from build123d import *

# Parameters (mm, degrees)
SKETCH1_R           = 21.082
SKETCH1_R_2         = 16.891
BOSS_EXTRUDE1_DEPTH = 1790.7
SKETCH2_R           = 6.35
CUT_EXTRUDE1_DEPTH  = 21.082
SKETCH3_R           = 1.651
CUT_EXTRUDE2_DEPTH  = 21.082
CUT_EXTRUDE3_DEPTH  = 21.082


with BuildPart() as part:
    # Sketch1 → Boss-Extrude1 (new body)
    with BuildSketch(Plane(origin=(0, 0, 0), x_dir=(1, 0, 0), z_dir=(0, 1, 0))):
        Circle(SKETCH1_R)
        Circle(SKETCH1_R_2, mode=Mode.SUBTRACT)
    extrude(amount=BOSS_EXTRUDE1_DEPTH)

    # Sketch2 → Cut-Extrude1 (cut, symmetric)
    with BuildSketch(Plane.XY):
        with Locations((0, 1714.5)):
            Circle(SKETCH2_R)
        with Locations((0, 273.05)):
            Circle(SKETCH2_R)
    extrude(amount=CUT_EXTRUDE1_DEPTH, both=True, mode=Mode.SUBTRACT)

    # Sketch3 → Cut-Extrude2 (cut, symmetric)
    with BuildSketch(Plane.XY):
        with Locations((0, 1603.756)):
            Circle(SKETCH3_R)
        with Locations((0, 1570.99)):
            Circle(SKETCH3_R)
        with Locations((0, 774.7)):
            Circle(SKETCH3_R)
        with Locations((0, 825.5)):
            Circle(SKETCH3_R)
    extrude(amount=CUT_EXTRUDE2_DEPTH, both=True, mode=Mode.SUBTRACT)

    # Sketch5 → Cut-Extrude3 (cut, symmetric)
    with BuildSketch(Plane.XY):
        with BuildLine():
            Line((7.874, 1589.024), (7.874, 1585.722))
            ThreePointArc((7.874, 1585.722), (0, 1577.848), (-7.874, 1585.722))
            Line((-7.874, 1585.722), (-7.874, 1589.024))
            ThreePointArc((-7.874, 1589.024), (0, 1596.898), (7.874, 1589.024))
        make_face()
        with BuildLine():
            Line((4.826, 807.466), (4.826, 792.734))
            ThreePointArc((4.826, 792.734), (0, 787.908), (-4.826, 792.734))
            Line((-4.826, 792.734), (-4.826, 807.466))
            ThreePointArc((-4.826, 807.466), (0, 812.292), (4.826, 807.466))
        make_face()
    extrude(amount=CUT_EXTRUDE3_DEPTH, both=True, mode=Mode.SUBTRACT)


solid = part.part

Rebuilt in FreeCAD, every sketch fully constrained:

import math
import FreeCAD as App
import Part
import Sketcher
from FreeCAD import Vector
Q = App.Units.Quantity

doc = App.newDocument("Part")
body = doc.addObject("PartDesign::Body", "Body")

# Sketch on XZ plane
sketch1 = body.newObject("Sketcher::SketchObject", "Sketch")
sketch1.AttachmentSupport = (doc.getObject("XZ_Plane"), [""])
sketch1.MapMode = "FlatFace"
sketch1.addGeometry(Part.Circle(Vector(0, 0, 0), Vector(0, 0, 1), 21.082), False)
sketch1.addGeometry(Part.Circle(Vector(0, 0, 0), Vector(0, 0, 1), 16.891), False)
sketch1.addConstraint(Sketcher.Constraint("Coincident", 0, 3, -1, 1))
sketch1.addConstraint(Sketcher.Constraint("Coincident", 1, 3, -1, 1))
sketch1.addConstraint(Sketcher.Constraint("Diameter", 0, Q("1.66 in")))
sketch1.addConstraint(Sketcher.Constraint("Diameter", 1, Q("1.33 in")))
pad1 = body.newObject("PartDesign::Pad", "Pad")
pad1.Profile = sketch1
pad1.Length = Q("70.5 in")
pad1.Reversed = True

# Sketch on XY plane
sketch2 = body.newObject("Sketcher::SketchObject", "Sketch001")
sketch2.AttachmentSupport = (doc.getObject("XY_Plane"), [""])
sketch2.MapMode = "FlatFace"
sketch2.addGeometry(Part.Circle(Vector(0, 1714.5, 0), Vector(0, 0, 1), 6.35), False)
sketch2.addGeometry(Part.Circle(Vector(0, 273.05, 0), Vector(0, 0, 1), 6.35), False)
sketch2.addConstraint(Sketcher.Constraint("Equal", 0, 1))
sketch2.addConstraint(Sketcher.Constraint("PointOnObject", 0, 3, -2))
sketch2.addConstraint(Sketcher.Constraint("PointOnObject", 1, 3, -2))
sketch2.addConstraint(Sketcher.Constraint("Diameter", 0, Q("0.5 in")))
sketch2.addConstraint(Sketcher.Constraint("DistanceY", -1, 1, 0, 3, Q("67.5 in")))
sketch2.addConstraint(Sketcher.Constraint("DistanceY", -1, 1, 1, 3, Q("10.75 in")))
pocket1 = body.newObject("PartDesign::Pocket", "Pocket")
pocket1.Profile = sketch2
pocket1.Length = Q("1.66 in")
pocket1.Midplane = True

# Sketch on XY plane
sketch3 = body.newObject("Sketcher::SketchObject", "Sketch002")
sketch3.AttachmentSupport = (doc.getObject("XY_Plane"), [""])
sketch3.MapMode = "FlatFace"
sketch3.addGeometry(Part.Circle(Vector(0, 1603.756, 0), Vector(0, 0, 1), 1.651), False)
sketch3.addGeometry(Part.Circle(Vector(0, 1570.99, 0), Vector(0, 0, 1), 1.651), False)
sketch3.addGeometry(Part.Circle(Vector(0, 774.7, 0), Vector(0, 0, 1), 1.651), False)
sketch3.addGeometry(Part.Circle(Vector(0, 825.5, 0), Vector(0, 0, 1), 1.651), False)
sketch3.addConstraint(Sketcher.Constraint("Equal", 0, 1))
sketch3.addConstraint(Sketcher.Constraint("Equal", 1, 2))
sketch3.addConstraint(Sketcher.Constraint("Equal", 2, 3))
sketch3.addConstraint(Sketcher.Constraint("PointOnObject", 0, 3, -2))
sketch3.addConstraint(Sketcher.Constraint("PointOnObject", 1, 3, -2))
sketch3.addConstraint(Sketcher.Constraint("PointOnObject", 2, 3, -2))
sketch3.addConstraint(Sketcher.Constraint("PointOnObject", 3, 3, -2))
sketch3.addConstraint(Sketcher.Constraint("Diameter", 0, Q("0.13 in")))
sketch3.addConstraint(Sketcher.Constraint("DistanceY", 2, 3, 3, 3, Q("2 in")))
sketch3.addConstraint(Sketcher.Constraint("DistanceY", -1, 1, 2, 3, Q("30.5 in")))
sketch3.addConstraint(Sketcher.Constraint("DistanceY", -1, 1, 0, 3, Q("63.14 in")))
sketch3.addConstraint(Sketcher.Constraint("DistanceY", -1, 1, 1, 3, Q("61.85 in")))
pocket2 = body.newObject("PartDesign::Pocket", "Pocket001")
pocket2.Profile = sketch3
pocket2.Length = Q("1.66 in")
pocket2.Midplane = True

# Sketch on XY plane
sketch4 = body.newObject("Sketcher::SketchObject", "Sketch003")
sketch4.AttachmentSupport = (doc.getObject("XY_Plane"), [""])
sketch4.MapMode = "FlatFace"
sketch4.addGeometry(Part.LineSegment(Vector(7.874, 1585.722, 0), Vector(7.874, 1589.024, 0)), False)
sketch4.addGeometry(Part.ArcOfCircle(Part.Circle(Vector(0, 1589.024, 0), Vector(0, 0, 1), 7.874), math.radians(0), math.radians(180)), False)
sketch4.addGeometry(Part.LineSegment(Vector(-7.874, 1589.024, 0), Vector(-7.874, 1585.722, 0)), False)
sketch4.addGeometry(Part.ArcOfCircle(Part.Circle(Vector(0, 1585.722, 0), Vector(0, 0, 1), 7.874), math.radians(180), math.radians(360)), False)
sketch4.addGeometry(Part.LineSegment(Vector(4.826, 792.734, 0), Vector(4.826, 807.466, 0)), False)
sketch4.addGeometry(Part.ArcOfCircle(Part.Circle(Vector(0, 807.466, 0), Vector(0, 0, 1), 4.826), math.radians(0), math.radians(180)), False)
sketch4.addGeometry(Part.LineSegment(Vector(-4.826, 807.466, 0), Vector(-4.826, 792.734, 0)), False)
sketch4.addGeometry(Part.ArcOfCircle(Part.Circle(Vector(0, 792.734, 0), Vector(0, 0, 1), 4.826), math.radians(180), math.radians(360)), False)
sketch4.addConstraint(Sketcher.Constraint("Tangent", 0, 2, 1, 1))
sketch4.addConstraint(Sketcher.Constraint("Tangent", 1, 2, 2, 1))
sketch4.addConstraint(Sketcher.Constraint("Tangent", 2, 2, 3, 1))
sketch4.addConstraint(Sketcher.Constraint("Tangent", 3, 2, 0, 1))
sketch4.addConstraint(Sketcher.Constraint("Tangent", 4, 2, 5, 1))
sketch4.addConstraint(Sketcher.Constraint("Tangent", 5, 2, 6, 1))
sketch4.addConstraint(Sketcher.Constraint("Tangent", 6, 2, 7, 1))
sketch4.addConstraint(Sketcher.Constraint("Tangent", 7, 2, 4, 1))
sketch4.addConstraint(Sketcher.Constraint("Vertical", 0))
sketch4.addConstraint(Sketcher.Constraint("Vertical", 2))
sketch4.addConstraint(Sketcher.Constraint("Vertical", 4))
sketch4.addConstraint(Sketcher.Constraint("Vertical", 6))
sketch4.addConstraint(Sketcher.Constraint("PointOnObject", 1, 3, -2))
sketch4.addConstraint(Sketcher.Constraint("PointOnObject", 5, 3, -2))
sketch4.addConstraint(Sketcher.Constraint("Radius", 1, Q("0.31 in")))
sketch4.addConstraint(Sketcher.Constraint("Radius", 5, Q("0.19 in")))
sketch4.addConstraint(Sketcher.Constraint("DistanceY", 0, 1, 0, 2, Q("0.13 in")))
sketch4.addConstraint(Sketcher.Constraint("DistanceY", 4, 1, 4, 2, Q("0.58 in")))
sketch4.addConstraint(Sketcher.Constraint("DistanceY", -1, 1, 1, 3, Q("62.56 in")))
sketch4.addConstraint(Sketcher.Constraint("DistanceY", -1, 1, 5, 3, Q("31.79 in")))
pocket3 = body.newObject("PartDesign::Pocket", "Pocket002")
pocket3.Profile = sketch4
pocket3.Length = Q("1.66 in")
pocket3.Midplane = True

doc.recompute()
